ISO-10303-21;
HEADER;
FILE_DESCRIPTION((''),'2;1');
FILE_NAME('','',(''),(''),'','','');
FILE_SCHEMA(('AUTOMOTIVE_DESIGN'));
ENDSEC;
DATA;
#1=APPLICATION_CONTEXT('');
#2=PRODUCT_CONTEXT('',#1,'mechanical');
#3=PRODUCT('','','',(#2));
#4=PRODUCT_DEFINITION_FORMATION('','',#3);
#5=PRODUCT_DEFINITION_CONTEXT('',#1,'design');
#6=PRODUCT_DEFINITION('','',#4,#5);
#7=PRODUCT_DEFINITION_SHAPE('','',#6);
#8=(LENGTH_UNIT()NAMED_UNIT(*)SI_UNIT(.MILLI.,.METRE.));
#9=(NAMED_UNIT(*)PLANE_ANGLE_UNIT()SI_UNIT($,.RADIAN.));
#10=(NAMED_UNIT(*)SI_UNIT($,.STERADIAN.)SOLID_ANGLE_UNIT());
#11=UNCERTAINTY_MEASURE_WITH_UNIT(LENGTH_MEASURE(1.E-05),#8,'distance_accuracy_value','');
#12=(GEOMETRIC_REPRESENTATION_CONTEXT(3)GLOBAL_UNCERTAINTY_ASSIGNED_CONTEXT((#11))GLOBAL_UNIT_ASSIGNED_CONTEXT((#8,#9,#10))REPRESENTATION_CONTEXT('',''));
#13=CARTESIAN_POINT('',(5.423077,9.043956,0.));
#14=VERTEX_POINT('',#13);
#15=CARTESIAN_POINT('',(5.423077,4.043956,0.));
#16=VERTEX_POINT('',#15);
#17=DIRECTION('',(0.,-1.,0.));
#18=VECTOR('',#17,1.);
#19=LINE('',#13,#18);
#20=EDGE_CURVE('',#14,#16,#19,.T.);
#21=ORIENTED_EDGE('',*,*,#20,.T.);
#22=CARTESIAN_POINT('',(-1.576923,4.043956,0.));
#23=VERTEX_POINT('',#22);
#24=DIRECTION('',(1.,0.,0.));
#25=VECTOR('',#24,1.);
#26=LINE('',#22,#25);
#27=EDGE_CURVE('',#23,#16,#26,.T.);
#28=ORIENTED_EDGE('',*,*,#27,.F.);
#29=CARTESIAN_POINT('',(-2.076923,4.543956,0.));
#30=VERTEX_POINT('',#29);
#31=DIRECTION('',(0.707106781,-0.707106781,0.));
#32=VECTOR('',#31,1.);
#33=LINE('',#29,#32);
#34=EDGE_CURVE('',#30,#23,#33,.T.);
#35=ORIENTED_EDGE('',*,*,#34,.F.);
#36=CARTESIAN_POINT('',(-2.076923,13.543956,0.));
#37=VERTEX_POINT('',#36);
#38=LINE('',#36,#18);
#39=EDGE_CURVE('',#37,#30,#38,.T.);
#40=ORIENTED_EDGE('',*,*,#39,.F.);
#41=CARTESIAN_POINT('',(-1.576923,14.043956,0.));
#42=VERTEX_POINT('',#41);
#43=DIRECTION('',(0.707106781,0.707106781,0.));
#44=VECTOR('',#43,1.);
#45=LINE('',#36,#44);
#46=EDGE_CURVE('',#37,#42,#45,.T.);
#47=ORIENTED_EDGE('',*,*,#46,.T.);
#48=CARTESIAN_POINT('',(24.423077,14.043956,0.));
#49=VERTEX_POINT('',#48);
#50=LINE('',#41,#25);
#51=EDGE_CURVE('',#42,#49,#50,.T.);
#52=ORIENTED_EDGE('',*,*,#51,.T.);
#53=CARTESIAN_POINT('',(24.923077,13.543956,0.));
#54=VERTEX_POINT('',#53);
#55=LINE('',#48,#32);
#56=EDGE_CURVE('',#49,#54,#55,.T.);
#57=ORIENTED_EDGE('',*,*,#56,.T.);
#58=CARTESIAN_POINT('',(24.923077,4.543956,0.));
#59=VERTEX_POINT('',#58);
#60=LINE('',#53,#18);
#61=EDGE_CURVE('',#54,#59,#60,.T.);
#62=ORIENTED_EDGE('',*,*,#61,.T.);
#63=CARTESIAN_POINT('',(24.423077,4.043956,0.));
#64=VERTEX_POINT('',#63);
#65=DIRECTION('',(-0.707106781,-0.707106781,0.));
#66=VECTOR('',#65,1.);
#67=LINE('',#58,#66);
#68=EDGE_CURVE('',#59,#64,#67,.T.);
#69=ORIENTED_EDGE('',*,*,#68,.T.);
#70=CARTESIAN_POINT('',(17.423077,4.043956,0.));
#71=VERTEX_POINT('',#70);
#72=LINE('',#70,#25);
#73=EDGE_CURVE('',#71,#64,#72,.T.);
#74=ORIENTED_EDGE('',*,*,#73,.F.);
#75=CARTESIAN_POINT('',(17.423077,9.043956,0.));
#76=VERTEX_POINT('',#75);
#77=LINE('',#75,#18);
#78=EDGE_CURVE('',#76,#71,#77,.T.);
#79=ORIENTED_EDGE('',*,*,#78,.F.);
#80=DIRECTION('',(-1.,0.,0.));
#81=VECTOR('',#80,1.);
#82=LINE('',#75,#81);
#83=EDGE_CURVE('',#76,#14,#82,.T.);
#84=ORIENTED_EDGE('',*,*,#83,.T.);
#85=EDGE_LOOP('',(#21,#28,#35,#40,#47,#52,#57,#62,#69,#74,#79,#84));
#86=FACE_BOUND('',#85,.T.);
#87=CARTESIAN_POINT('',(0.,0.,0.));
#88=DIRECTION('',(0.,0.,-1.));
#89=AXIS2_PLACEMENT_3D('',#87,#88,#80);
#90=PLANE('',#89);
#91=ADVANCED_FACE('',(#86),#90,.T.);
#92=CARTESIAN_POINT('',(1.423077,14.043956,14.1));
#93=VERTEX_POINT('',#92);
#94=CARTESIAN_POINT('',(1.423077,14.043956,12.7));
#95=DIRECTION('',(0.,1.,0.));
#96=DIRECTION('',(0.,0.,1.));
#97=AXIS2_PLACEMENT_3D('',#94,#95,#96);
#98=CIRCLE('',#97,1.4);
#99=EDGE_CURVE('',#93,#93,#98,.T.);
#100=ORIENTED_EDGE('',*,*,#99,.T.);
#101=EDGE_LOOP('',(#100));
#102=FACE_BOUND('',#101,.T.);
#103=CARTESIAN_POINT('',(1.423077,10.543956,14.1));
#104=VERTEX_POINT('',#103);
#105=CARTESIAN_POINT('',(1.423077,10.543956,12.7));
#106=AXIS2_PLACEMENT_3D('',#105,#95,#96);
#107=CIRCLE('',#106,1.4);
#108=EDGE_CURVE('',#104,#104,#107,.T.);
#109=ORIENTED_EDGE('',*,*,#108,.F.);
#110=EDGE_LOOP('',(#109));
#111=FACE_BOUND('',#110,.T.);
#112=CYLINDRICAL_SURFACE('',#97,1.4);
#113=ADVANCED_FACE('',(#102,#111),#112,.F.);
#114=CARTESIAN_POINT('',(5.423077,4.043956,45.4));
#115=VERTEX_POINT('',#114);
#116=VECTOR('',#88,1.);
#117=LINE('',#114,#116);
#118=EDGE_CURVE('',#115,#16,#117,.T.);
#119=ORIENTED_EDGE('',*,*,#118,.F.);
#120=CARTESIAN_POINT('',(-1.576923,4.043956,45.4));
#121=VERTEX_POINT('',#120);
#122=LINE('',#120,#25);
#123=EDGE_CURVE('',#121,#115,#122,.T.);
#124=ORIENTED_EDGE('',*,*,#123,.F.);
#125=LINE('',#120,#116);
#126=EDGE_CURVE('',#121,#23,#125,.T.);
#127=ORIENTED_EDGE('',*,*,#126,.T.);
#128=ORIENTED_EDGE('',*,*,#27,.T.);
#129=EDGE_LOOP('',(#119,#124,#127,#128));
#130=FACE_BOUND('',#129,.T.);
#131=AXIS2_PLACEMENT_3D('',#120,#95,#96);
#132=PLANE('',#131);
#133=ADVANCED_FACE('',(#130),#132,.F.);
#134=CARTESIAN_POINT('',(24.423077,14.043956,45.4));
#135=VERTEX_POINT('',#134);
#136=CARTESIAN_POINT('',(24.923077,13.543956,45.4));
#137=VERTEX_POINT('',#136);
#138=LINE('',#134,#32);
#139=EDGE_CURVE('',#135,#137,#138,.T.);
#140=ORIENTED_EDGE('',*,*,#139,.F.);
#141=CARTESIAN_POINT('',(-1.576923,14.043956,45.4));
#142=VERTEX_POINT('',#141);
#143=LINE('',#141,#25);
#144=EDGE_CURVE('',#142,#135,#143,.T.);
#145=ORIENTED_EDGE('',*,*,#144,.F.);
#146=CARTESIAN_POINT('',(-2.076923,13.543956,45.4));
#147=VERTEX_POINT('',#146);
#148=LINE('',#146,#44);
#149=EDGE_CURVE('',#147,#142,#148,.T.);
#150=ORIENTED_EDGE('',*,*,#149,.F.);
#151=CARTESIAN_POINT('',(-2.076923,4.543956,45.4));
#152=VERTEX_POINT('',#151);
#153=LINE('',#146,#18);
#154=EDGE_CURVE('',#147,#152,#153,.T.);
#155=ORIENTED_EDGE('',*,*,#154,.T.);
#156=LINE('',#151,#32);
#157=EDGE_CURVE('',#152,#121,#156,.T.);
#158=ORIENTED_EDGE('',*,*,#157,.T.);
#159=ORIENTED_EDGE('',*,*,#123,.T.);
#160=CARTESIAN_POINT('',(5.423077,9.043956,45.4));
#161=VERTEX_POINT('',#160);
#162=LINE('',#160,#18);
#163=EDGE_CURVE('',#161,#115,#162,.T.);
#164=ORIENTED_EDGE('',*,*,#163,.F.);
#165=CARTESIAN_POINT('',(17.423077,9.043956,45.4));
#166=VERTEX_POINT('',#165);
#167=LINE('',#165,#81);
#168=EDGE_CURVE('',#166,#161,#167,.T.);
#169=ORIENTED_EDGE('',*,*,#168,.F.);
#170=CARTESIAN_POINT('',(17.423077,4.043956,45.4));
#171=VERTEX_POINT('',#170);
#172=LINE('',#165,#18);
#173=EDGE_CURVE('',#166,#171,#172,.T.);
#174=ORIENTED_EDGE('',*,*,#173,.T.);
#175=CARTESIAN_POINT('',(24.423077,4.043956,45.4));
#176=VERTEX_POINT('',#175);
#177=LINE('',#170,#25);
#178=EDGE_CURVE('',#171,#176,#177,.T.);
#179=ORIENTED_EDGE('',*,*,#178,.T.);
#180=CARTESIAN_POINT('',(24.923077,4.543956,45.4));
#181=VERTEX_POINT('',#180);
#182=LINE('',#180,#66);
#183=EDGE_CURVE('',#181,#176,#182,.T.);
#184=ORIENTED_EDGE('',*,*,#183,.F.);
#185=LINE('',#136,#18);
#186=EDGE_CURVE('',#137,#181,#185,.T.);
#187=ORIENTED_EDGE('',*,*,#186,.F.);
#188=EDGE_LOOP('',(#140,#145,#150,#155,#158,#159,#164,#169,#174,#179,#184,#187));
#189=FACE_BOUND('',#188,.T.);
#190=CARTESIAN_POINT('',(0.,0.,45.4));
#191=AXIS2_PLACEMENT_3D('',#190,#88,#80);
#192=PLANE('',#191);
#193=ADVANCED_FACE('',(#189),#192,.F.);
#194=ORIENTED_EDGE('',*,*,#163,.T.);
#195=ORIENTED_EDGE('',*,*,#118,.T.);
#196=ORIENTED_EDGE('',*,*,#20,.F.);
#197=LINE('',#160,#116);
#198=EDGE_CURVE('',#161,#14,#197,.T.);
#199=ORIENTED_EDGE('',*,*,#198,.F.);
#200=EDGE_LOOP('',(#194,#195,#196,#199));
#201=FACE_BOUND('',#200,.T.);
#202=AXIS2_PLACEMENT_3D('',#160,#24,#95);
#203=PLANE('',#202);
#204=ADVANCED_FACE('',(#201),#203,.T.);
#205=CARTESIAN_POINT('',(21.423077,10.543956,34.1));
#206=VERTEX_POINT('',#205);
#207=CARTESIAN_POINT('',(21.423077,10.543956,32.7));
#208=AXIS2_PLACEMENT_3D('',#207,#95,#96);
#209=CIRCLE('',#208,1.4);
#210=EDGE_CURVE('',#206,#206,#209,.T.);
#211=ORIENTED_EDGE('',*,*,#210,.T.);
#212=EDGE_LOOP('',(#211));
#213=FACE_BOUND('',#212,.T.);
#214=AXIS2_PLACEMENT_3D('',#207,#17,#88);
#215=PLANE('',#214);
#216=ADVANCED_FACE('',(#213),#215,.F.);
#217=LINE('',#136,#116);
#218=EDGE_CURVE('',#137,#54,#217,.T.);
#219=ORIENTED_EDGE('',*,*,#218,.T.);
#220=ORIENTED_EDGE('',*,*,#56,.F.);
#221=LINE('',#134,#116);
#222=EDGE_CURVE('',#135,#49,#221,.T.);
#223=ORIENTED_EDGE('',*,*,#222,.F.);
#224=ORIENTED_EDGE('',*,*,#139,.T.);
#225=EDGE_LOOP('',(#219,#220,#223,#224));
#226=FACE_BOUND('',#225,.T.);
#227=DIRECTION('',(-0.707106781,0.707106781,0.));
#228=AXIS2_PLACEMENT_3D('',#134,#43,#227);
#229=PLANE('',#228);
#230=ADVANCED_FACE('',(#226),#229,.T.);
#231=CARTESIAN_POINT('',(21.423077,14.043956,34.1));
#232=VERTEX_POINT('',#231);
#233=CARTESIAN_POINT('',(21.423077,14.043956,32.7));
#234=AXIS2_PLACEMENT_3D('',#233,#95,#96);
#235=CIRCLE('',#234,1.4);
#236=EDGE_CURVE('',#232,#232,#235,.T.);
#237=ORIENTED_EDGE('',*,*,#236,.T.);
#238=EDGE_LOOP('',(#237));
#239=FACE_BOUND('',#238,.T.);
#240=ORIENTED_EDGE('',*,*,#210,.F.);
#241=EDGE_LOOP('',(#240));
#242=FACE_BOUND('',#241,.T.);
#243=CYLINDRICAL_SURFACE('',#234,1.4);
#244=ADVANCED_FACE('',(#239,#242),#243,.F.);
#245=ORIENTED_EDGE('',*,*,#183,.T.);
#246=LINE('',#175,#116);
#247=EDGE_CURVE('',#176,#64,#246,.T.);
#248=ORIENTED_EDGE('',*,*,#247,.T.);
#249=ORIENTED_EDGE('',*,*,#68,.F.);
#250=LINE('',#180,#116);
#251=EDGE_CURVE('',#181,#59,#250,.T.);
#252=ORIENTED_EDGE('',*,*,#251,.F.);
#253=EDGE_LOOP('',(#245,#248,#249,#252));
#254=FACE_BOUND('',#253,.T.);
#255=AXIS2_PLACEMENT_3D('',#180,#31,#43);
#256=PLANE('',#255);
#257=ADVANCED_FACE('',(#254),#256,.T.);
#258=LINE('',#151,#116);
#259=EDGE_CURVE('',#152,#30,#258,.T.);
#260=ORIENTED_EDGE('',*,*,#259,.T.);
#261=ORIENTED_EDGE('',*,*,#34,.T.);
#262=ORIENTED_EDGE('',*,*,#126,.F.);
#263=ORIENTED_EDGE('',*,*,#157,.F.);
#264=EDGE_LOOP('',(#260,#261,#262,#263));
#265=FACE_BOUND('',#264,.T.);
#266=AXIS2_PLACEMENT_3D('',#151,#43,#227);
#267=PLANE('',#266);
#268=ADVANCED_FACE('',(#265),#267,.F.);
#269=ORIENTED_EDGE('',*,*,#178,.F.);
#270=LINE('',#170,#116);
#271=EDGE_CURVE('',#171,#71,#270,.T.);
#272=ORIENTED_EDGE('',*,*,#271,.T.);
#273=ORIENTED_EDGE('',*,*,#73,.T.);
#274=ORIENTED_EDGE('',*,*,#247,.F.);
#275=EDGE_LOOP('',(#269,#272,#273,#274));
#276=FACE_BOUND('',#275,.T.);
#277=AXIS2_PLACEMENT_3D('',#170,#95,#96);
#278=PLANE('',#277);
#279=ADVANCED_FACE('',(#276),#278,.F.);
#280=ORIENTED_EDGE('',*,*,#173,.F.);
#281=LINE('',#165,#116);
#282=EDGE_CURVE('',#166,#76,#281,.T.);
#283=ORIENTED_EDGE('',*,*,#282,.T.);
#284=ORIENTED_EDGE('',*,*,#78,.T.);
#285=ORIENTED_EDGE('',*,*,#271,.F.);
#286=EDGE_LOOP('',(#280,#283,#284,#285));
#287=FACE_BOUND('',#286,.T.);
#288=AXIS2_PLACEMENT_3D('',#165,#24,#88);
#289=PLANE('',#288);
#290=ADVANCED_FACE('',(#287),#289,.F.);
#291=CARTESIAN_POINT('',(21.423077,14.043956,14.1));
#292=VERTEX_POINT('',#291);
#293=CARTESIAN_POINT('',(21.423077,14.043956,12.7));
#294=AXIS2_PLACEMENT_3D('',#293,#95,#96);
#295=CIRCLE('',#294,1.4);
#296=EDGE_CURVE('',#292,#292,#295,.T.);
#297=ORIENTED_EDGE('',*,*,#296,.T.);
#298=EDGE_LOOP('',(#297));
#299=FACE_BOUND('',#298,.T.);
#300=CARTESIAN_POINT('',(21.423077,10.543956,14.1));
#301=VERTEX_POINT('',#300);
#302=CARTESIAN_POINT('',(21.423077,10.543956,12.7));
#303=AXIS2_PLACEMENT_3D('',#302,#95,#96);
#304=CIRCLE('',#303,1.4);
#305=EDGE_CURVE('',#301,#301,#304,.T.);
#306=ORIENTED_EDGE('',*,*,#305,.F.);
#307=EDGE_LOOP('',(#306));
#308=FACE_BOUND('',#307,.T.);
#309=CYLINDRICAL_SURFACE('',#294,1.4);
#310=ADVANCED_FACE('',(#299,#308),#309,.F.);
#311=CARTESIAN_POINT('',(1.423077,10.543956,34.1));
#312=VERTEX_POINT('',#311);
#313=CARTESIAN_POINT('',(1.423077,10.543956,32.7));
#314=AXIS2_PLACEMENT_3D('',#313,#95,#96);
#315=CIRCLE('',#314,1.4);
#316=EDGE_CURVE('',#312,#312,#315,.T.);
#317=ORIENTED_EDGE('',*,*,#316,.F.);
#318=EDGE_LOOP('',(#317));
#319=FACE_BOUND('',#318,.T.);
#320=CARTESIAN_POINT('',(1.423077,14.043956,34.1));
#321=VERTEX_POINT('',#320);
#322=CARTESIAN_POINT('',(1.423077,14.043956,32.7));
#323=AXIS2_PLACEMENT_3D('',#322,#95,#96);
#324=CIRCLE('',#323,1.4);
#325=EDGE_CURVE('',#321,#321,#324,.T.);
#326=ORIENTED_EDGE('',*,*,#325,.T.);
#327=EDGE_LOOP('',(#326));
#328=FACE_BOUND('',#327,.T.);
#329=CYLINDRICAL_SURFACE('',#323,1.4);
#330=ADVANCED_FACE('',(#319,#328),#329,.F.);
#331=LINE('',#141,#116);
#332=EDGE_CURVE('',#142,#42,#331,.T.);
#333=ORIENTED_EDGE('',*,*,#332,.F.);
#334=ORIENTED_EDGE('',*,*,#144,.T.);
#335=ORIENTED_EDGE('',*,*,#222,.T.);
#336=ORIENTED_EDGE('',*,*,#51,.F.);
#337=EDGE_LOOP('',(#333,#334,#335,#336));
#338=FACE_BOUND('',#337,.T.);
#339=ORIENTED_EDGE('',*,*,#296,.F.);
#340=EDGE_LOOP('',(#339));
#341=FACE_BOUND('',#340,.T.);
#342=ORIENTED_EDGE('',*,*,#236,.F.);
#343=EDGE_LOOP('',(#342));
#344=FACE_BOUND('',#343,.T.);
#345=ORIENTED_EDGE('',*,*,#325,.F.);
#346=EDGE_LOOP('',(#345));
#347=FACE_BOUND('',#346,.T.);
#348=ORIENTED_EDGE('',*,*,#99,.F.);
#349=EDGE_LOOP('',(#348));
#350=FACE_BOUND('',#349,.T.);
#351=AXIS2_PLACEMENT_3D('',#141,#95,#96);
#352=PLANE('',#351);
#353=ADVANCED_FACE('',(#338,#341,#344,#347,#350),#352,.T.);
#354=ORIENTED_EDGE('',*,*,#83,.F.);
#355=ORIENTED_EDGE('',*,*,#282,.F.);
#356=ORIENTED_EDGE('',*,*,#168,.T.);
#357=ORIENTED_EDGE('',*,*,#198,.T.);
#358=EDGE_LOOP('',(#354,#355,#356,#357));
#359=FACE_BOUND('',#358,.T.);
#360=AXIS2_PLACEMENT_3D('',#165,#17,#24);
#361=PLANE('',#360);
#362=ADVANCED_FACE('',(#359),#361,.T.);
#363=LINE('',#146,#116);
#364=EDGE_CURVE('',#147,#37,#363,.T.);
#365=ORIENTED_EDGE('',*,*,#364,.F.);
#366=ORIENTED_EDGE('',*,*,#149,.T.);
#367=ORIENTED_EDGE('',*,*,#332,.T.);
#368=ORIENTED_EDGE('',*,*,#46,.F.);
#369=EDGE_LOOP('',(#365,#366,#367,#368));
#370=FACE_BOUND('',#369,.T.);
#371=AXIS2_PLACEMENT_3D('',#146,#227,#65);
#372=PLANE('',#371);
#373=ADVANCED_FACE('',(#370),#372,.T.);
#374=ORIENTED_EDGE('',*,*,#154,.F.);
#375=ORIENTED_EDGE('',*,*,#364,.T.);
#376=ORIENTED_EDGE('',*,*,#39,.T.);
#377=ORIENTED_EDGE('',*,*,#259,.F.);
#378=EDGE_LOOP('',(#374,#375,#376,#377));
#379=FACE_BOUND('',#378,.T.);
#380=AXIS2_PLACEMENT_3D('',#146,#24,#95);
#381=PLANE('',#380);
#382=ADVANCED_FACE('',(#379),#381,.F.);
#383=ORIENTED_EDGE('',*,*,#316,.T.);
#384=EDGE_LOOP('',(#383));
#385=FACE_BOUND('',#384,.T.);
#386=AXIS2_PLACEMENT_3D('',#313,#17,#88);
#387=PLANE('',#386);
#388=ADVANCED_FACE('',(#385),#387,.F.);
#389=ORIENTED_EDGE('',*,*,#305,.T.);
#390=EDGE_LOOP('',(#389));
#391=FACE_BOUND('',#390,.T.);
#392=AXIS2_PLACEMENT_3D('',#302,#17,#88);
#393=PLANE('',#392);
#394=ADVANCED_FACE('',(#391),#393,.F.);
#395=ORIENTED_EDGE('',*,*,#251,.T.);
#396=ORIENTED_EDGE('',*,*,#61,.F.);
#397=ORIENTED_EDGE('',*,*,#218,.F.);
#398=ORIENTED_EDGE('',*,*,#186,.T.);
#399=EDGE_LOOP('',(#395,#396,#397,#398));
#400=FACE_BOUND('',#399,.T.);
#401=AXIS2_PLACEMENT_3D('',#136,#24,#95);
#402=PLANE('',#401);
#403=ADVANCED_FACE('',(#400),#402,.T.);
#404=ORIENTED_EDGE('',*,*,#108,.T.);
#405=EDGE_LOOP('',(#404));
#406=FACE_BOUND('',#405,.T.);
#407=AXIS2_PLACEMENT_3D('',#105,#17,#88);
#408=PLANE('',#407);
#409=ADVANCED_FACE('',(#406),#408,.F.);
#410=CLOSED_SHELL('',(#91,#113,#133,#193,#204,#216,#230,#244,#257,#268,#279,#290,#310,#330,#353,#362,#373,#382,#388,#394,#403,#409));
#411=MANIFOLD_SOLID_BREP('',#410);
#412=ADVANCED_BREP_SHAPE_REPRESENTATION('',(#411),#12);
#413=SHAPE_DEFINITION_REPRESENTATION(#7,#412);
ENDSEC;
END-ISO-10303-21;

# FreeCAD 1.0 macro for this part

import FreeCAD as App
import Part
import Sketcher
Q = App.Units.Quantity


def add_polygon(sketch, points):
    """Adds a closed chain of lines whose ends are joined by coincident constraints."""
    first, n = sketch.GeometryCount, len(points)
    for a, b in zip(points, points[1:] + points[:1]):
        sketch.addGeometry(Part.LineSegment(App.Vector(*a, 0), App.Vector(*b, 0)), False)
    for i in range(n):
        sketch.addConstraint(Sketcher.Constraint("Coincident", first + i, 2, first + (i + 1) % n, 1))

doc = App.newDocument("Part")
body = doc.addObject("PartDesign::Body", "Body")

sketch1 = body.newObject("Sketcher::SketchObject", "Sketch")
sketch1.AttachmentSupport = (doc.getObject("XY_Plane"), [""])
sketch1.MapMode = "FlatFace"
add_polygon(sketch1, [(24.4, 14), (-1.6, 14), (-2.1, 13.5), (-2.1, 4.5), (-1.6, 4), (5.4, 4), (5.4, 9), (17.4, 9), (17.4, 4), (24.4, 4), (24.9, 4.5), (24.9, 13.5)])
sketch1.addConstraint([
    Sketcher.Constraint("Horizontal", 0),
    Sketcher.Constraint("Vertical", 2),
    Sketcher.Constraint("Horizontal", 4),
    Sketcher.Constraint("Vertical", 5),
    Sketcher.Constraint("Horizontal", 6),
    Sketcher.Constraint("Vertical", 7),
    Sketcher.Constraint("Horizontal", 8),
    Sketcher.Constraint("Vertical", 10),
    Sketcher.Constraint("Perpendicular", 1, 3),
    Sketcher.Constraint("Perpendicular", 3, 9),
    Sketcher.Constraint("Perpendicular", 9, 11),
    Sketcher.Constraint("Horizontal", 4, 2, 7, 2),
    Sketcher.Constraint("Horizontal", 2, 2, 9, 2),
    Sketcher.Constraint("Horizontal", 1, 2, 10, 2),
    Sketcher.Constraint("Vertical", 0, 2, 3, 2),
    Sketcher.Constraint("Vertical", 8, 2, 11, 2),
    Sketcher.Constraint("Equal", 4, 8),
    Sketcher.Constraint("DistanceX", 0, 2, 0, 1, Q("26 mm")),
    Sketcher.Constraint("DistanceX", 4, 1, 4, 2, Q("7 mm")),
    Sketcher.Constraint("DistanceY", 2, 2, 2, 1, Q("9 mm")),
    Sketcher.Constraint("DistanceY", 5, 1, 5, 2, Q("5 mm")),
    Sketcher.Constraint("DistanceY", 3, 2, 0, 2, Q("10 mm")),
    Sketcher.Constraint("DistanceX", 0, 2, -1, 1, Q("1.576923 mm")),
    Sketcher.Constraint("DistanceY", -1, 1, 0, 2, Q("14.043956 mm")),
])
pad1 = body.newObject("PartDesign::Pad", "Pad")
pad1.Profile = sketch1
pad1.Length = 45.4

sketch2 = body.newObject("Sketcher::SketchObject", "Sketch001")
sketch2.AttachmentSupport = (doc.getObject("XZ_Plane"), [""])
sketch2.MapMode = "FlatFace"
sketch2.AttachmentOffset = App.Placement(App.Vector(0, 0, -14.043956), App.Rotation())
sketch2.addGeometry([
    Part.Circle(App.Vector(21.4, 32.7, 0), App.Vector(0, 0, 1), 1.4),
    Part.Circle(App.Vector(21.4, 12.7, 0), App.Vector(0, 0, 1), 1.4),
    Part.Circle(App.Vector(1.4, 12.7, 0), App.Vector(0, 0, 1), 1.4),
    Part.Circle(App.Vector(1.4, 32.7, 0), App.Vector(0, 0, 1), 1.4),
], False)
sketch2.addConstraint([
    Sketcher.Constraint("Equal", 0, 1),
    Sketcher.Constraint("Equal", 1, 2),
    Sketcher.Constraint("Equal", 2, 3),
    Sketcher.Constraint("Horizontal", 1, 3, 2, 3),
    Sketcher.Constraint("Horizontal", 0, 3, 3, 3),
    Sketcher.Constraint("Vertical", 0, 3, 1, 3),
    Sketcher.Constraint("Vertical", 2, 3, 3, 3),
    Sketcher.Constraint("Diameter", 0, Q("2.8 mm")),
    Sketcher.Constraint("DistanceY", 1, 3, 0, 3, Q("20 mm")),
    Sketcher.Constraint("DistanceX", 2, 3, 1, 3, Q("20 mm")),
    Sketcher.Constraint("DistanceY", -1, 1, 0, 3, Q("32.7 mm")),
    Sketcher.Constraint("DistanceX", -1, 1, 0, 3, Q("21.423077 mm")),
])
doc.recompute()
hole = body.newObject("PartDesign::Hole", "Hole")
hole.Profile = sketch2
hole.ThreadType = "None"
hole.Diameter = 2.8
hole.DepthType = "Dimension"
hole.Depth = 3.5
hole.DrillPoint = "Flat"
hole.Reversed = True

doc.recompute()
